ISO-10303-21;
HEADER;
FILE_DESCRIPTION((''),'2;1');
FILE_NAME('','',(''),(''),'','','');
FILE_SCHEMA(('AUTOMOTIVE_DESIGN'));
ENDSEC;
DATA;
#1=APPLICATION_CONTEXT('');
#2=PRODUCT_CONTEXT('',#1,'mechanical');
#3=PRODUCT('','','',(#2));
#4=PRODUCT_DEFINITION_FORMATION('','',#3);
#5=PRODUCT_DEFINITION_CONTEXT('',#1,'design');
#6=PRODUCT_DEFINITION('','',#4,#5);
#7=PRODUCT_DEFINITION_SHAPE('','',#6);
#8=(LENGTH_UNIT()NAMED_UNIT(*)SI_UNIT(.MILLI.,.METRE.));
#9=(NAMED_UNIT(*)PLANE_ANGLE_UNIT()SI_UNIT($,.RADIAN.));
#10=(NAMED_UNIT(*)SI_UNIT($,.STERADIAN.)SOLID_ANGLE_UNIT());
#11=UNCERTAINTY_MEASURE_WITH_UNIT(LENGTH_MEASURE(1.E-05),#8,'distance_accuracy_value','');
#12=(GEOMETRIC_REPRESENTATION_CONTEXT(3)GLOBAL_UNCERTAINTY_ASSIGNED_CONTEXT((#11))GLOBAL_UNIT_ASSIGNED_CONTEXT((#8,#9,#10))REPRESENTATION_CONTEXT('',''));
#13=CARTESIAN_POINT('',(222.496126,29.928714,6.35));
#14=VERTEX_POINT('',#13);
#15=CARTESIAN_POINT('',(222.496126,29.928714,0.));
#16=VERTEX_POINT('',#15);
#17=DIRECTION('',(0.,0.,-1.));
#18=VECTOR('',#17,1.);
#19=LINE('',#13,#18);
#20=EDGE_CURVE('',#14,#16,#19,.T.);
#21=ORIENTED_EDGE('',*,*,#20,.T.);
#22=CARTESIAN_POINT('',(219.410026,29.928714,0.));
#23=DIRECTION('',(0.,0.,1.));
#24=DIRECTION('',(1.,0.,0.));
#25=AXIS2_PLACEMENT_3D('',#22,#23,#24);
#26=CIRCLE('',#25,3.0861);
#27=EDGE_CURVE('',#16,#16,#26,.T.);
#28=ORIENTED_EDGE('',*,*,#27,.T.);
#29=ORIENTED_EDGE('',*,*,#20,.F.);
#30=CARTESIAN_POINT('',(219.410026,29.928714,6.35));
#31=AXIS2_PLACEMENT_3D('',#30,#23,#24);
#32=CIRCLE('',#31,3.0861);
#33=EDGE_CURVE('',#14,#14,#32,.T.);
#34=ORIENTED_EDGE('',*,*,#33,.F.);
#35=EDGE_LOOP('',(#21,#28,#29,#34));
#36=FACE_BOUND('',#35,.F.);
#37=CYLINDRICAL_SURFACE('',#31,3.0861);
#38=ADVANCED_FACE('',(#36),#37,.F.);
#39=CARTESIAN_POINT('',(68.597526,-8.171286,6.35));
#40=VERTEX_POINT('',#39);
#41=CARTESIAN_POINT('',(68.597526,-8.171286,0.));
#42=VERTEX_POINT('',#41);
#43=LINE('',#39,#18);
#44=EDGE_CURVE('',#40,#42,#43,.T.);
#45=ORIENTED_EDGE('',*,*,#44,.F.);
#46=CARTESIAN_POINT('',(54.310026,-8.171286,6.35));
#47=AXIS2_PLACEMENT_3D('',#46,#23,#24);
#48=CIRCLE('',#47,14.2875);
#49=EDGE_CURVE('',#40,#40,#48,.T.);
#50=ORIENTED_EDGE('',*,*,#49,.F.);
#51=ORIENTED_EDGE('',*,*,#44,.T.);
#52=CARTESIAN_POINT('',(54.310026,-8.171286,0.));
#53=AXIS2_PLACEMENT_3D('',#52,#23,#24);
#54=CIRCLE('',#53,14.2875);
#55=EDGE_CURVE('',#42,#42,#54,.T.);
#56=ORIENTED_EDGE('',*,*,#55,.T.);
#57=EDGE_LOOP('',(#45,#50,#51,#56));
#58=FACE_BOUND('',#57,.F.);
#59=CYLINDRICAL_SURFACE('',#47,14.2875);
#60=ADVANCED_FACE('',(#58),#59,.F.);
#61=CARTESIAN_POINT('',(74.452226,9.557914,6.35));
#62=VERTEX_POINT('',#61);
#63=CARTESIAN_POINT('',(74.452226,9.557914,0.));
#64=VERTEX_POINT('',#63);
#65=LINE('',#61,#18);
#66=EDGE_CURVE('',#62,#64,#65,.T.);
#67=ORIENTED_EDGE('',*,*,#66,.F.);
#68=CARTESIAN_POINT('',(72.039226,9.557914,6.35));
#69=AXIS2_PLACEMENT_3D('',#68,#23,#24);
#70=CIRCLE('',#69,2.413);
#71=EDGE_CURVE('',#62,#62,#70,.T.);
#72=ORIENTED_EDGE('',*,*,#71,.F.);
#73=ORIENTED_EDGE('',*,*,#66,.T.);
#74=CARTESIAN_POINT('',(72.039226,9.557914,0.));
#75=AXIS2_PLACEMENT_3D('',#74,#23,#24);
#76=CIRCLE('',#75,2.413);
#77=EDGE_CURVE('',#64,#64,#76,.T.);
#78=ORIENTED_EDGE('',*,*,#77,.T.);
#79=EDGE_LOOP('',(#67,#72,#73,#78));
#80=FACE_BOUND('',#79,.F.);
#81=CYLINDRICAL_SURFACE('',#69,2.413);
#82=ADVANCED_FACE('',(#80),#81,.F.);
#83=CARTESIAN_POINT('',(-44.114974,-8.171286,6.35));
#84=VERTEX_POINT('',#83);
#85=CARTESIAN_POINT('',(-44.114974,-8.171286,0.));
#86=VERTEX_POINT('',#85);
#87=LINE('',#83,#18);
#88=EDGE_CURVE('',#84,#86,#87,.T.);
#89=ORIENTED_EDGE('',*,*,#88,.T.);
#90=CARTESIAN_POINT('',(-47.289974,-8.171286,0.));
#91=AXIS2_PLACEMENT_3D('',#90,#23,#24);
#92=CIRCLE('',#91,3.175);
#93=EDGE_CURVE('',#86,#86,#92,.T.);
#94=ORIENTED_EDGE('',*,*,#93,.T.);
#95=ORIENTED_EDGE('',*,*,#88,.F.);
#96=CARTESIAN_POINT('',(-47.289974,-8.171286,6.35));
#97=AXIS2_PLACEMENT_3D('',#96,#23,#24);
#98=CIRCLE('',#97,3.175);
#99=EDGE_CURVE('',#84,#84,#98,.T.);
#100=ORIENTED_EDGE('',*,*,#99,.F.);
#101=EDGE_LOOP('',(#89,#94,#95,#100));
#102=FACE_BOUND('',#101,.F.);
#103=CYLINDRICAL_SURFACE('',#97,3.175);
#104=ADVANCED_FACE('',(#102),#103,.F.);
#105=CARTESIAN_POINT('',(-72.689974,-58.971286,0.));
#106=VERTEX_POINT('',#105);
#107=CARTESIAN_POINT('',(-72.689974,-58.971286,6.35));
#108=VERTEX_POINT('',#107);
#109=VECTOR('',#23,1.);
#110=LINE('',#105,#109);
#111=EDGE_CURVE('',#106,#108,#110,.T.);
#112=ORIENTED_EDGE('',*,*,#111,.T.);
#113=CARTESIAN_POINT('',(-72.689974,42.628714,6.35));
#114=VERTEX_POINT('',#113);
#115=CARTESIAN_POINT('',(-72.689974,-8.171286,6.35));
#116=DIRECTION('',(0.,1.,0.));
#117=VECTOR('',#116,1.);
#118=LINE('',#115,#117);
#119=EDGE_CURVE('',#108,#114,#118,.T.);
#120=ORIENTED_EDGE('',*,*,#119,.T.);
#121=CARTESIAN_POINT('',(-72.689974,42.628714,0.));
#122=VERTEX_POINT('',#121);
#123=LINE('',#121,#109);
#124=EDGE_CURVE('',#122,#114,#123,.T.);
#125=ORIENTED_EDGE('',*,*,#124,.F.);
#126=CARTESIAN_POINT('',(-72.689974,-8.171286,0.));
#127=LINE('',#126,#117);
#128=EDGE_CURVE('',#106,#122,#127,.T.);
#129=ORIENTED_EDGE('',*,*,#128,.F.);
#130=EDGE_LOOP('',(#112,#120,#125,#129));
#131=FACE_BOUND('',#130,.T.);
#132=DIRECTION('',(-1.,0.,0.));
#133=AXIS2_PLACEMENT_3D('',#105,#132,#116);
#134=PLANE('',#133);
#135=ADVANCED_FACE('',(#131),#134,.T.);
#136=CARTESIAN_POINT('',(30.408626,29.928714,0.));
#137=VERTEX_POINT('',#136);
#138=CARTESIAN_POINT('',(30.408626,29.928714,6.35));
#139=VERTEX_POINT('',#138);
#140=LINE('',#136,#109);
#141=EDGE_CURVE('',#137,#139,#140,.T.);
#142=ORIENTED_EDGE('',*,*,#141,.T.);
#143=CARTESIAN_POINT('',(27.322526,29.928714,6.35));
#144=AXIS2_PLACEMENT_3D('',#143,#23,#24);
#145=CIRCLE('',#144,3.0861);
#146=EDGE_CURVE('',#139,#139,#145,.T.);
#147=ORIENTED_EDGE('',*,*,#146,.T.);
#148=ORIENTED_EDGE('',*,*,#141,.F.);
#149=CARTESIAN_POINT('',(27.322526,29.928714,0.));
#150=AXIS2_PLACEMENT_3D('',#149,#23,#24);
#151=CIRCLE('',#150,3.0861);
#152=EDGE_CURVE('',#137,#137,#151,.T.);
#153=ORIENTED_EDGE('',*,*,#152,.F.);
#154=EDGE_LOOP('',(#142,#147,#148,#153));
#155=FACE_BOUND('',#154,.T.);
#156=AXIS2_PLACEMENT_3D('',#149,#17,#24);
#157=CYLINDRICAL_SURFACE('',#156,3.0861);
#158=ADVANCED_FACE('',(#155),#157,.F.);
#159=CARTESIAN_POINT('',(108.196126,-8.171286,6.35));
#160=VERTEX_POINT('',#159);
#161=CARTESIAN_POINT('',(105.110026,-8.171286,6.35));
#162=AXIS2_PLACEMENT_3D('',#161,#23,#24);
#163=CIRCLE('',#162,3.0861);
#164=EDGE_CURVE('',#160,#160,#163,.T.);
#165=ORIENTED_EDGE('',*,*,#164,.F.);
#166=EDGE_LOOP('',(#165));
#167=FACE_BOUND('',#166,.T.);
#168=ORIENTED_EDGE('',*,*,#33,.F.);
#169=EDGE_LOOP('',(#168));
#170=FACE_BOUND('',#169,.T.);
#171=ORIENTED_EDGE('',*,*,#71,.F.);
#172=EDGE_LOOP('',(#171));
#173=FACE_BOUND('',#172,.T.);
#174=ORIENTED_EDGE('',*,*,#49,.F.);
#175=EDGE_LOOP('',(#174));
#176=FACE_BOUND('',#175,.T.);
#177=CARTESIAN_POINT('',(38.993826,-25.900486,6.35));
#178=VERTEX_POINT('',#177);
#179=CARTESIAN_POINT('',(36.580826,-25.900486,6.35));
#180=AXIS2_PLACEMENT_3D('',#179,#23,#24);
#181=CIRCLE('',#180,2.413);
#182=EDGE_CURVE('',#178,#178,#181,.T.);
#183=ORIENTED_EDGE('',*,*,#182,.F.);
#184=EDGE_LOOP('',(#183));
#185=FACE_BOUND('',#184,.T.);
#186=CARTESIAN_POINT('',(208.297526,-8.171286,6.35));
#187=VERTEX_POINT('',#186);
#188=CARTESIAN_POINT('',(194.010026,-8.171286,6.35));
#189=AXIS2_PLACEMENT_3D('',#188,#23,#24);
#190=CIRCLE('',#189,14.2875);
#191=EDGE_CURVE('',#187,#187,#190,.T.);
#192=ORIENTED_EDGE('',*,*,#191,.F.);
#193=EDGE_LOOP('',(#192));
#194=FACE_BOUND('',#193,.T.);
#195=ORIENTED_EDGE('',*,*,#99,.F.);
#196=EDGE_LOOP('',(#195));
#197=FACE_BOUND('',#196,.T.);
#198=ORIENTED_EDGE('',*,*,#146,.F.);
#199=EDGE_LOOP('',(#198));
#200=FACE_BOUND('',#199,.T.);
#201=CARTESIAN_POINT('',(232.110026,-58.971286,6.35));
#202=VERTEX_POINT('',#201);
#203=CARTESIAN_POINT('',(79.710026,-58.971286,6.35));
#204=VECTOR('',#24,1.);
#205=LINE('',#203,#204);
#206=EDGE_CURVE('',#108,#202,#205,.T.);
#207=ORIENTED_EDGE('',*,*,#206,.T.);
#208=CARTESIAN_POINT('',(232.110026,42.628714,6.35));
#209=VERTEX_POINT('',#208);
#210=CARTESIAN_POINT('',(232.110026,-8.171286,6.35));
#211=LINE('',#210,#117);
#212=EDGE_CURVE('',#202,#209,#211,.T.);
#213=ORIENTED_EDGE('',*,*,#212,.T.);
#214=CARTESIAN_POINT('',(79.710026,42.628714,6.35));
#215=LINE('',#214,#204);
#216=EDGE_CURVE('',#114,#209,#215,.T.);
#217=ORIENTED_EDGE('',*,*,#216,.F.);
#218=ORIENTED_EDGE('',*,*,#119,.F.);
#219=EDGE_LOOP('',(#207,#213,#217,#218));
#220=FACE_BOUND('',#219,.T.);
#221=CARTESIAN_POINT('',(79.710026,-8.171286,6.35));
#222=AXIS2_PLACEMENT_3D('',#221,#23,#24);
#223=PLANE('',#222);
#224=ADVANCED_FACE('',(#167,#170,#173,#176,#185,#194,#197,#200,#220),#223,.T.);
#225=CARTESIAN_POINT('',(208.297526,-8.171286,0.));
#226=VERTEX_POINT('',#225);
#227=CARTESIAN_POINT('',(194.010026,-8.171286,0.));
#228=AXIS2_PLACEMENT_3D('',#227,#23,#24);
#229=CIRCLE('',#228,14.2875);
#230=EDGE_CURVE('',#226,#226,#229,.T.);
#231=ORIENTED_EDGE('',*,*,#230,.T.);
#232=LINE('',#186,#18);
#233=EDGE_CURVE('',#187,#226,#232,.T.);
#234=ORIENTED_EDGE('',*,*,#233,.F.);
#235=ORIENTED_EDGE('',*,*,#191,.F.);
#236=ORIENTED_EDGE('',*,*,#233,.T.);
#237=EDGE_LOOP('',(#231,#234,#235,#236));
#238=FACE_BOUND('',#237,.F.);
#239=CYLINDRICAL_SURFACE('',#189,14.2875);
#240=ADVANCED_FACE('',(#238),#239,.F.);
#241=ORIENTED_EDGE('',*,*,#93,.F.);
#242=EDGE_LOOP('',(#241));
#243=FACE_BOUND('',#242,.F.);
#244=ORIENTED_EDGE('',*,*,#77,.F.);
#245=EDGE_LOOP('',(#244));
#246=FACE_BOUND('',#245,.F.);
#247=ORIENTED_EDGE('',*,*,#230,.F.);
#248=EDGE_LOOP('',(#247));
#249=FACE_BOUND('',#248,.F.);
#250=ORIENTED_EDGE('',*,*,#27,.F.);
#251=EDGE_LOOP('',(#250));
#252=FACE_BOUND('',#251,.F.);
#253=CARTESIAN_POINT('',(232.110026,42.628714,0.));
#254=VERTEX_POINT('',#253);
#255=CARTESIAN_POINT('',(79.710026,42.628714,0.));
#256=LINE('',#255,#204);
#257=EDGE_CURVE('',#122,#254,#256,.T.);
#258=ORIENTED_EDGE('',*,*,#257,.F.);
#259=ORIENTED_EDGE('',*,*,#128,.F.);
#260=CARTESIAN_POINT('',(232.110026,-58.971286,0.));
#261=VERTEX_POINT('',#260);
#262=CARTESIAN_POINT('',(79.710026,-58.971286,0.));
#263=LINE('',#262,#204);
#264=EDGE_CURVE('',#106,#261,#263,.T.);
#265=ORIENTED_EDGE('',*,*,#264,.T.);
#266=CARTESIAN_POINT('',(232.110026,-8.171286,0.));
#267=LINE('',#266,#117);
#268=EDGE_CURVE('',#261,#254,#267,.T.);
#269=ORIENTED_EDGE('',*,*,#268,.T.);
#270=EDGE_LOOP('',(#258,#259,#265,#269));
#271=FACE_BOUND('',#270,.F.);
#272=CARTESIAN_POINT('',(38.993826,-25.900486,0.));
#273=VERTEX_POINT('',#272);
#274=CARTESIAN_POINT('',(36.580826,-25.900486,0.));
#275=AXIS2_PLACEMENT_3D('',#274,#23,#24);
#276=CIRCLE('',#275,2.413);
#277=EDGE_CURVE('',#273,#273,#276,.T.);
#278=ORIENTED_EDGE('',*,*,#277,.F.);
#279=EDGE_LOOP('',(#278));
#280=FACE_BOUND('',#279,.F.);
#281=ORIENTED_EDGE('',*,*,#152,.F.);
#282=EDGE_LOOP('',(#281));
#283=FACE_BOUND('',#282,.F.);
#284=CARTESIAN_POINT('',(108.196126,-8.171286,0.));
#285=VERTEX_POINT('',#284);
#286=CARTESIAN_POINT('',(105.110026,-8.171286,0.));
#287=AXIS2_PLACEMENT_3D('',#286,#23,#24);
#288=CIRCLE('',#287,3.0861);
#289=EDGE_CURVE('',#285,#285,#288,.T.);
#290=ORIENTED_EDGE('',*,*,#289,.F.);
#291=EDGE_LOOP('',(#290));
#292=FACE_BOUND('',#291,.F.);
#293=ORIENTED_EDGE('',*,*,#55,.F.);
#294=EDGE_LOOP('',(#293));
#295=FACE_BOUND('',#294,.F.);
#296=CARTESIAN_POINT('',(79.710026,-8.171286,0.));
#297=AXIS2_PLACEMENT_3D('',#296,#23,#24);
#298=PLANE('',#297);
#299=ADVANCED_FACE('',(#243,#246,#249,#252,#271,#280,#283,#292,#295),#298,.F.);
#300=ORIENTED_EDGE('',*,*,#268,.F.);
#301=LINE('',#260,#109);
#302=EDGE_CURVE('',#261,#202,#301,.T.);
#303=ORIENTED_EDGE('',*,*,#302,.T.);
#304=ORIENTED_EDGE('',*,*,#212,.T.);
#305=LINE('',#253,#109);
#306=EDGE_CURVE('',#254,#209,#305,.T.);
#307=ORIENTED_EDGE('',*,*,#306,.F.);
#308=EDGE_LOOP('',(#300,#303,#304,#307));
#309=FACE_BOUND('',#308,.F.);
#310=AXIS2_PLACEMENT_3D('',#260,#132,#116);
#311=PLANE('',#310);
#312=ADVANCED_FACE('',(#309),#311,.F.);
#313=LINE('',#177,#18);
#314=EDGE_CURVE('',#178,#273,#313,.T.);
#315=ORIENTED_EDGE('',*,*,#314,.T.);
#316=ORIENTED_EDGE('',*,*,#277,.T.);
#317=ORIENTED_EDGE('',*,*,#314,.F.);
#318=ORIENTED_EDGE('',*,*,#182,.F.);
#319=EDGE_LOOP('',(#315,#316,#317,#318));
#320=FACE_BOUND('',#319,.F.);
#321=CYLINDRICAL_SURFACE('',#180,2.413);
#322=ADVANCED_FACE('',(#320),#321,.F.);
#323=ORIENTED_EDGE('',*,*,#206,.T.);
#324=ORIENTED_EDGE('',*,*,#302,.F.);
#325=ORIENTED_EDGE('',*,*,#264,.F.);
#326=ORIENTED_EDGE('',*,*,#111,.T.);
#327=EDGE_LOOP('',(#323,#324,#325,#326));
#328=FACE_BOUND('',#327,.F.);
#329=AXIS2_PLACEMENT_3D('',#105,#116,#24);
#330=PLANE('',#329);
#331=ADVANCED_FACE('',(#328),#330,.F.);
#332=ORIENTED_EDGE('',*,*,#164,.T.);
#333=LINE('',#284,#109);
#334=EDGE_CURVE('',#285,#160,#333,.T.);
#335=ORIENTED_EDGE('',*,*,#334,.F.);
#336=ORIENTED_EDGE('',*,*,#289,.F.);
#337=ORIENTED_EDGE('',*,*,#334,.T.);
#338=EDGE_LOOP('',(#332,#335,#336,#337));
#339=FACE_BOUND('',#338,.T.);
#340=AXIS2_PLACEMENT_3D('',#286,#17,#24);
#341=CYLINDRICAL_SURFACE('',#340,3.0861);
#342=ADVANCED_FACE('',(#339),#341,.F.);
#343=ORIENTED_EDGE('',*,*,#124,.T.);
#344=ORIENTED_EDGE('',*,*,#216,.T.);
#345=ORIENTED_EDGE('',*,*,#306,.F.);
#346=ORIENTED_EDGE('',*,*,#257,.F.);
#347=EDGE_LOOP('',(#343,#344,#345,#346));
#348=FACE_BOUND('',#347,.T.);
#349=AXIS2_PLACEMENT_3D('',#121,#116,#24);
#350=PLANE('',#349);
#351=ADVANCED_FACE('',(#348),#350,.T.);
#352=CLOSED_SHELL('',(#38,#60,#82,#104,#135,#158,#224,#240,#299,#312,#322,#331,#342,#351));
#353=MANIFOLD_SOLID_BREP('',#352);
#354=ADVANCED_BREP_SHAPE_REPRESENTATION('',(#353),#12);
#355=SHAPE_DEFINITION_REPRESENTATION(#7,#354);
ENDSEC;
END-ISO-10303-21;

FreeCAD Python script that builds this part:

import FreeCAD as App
import Part
import Sketcher
from FreeCAD import Vector
Q = App.Units.Quantity


def add_polygon(sketch, points):
    """Adds a closed chain of lines whose ends are joined by coincident constraints."""
    first, n = sketch.GeometryCount, len(points)
    for a, b in zip(points, points[1:] + points[:1]):
        sketch.addGeometry(Part.LineSegment(App.Vector(*a, 0), App.Vector(*b, 0)), False)
    for i in range(n):
        sketch.addConstraint(Sketcher.Constraint("Coincident", first + i, 2, first + (i + 1) % n, 1))

doc = App.newDocument("Part")
params = doc.addObject("Spreadsheet::Sheet", "Params")
for row, (alias, value) in enumerate([
    ("sketch1_width", "12 in"),
    ("sketch1_height", "4 in"),
    ("pad1_length", "0.25 in"),
    ("sketch2_diameter", "0.25 in"),
    ("pocket1_length", "0.25 in"),
    ("sketch3_diameter", "1.125 in"),
    ("pocket2_length", "0.25 in"),
    ("sketch4_diameter", "1.125 in"),
    ("pocket3_length", "0.25 in"),
    ("sketch5_diameter", "0.19 in"),
    ("pocket4_length", "0.25 in"),
    ("sketch6_diameter", "0.243 in"),
    ("pocket5_length", "0.25 in"),
    ("sketch7_diameter", "0.243 in"),
    ("pocket6_length", "0.25 in"),
    ("sketch8_diameter", "0.243 in"),
    ("pocket7_length", "0.25 in"),
], start=1):
    params.set(f"A{row}", alias)
    params.set(f"B{row}", "=" + value)
    params.setAlias(f"B{row}", alias)

body = doc.addObject("PartDesign::Body", "Body")

# Sketch on XY plane
sketch1 = body.newObject("Sketcher::SketchObject", "Sketch")
sketch1.AttachmentSupport = (doc.getObject("XY_Plane"), [""])
sketch1.MapMode = "FlatFace"
add_polygon(sketch1, [(-73, 43), (-73, -59), (232, -59), (232, 43)])  # lines 0-3
sketch1.addConstraint(Sketcher.Constraint("Vertical", 0))
sketch1.addConstraint(Sketcher.Constraint("Horizontal", 1))
sketch1.addConstraint(Sketcher.Constraint("Vertical", 2))
sketch1.addConstraint(Sketcher.Constraint("Horizontal", 3))
sketch1.addConstraint(Sketcher.Constraint("DistanceX", 1, 1, 1, 2, Q("12 in")))
sketch1.addConstraint(Sketcher.Constraint("DistanceY", 0, 2, 0, 1, Q("4 in")))
sketch1.addConstraint(Sketcher.Constraint("DistanceX", 0, 2, -1, 1, Q("72.689974 mm")))
sketch1.addConstraint(Sketcher.Constraint("DistanceY", 0, 2, -1, 1, Q("58.971286 mm")))
sketch1.setExpression("Constraints[8]", "Params.sketch1_width")
sketch1.setExpression("Constraints[9]", "Params.sketch1_height")
pad1 = body.newObject("PartDesign::Pad", "Pad")
pad1.Profile = sketch1
pad1.setExpression("Length", "Params.pad1_length")

# Sketch on XY plane
sketch2 = body.newObject("Sketcher::SketchObject", "Sketch001")
sketch2.AttachmentSupport = (doc.getObject("XY_Plane"), [""])
sketch2.MapMode = "FlatFace"
sketch2.AttachmentOffset = App.Placement(Vector(0, 0, 0.25 * 25.4), App.Rotation())
sketch2.addGeometry(Part.Circle(Vector(-47.3, -8.2, 0), Vector(0, 0, 1), 3.2), False)
sketch2.addConstraint(Sketcher.Constraint("Diameter", 0, Q("0.25 in")))
sketch2.addConstraint(Sketcher.Constraint("DistanceX", 0, 3, -1, 1, Q("47.289974 mm")))
sketch2.addConstraint(Sketcher.Constraint("DistanceY", 0, 3, -1, 1, Q("8.171286 mm")))
sketch2.setExpression("Constraints[0]", "Params.sketch2_diameter")
pocket1 = body.newObject("PartDesign::Pocket", "Pocket")
pocket1.Profile = sketch2
pocket1.setExpression("Length", "Params.pocket1_length")

# Sketch on XY plane
sketch3 = body.newObject("Sketcher::SketchObject", "Sketch002")
sketch3.AttachmentSupport = (doc.getObject("XY_Plane"), [""])
sketch3.MapMode = "FlatFace"
sketch3.AttachmentOffset = App.Placement(Vector(0, 0, 0.25 * 25.4), App.Rotation())
sketch3.addGeometry(Part.Circle(Vector(194, -8, 0), Vector(0, 0, 1), 14), False)
sketch3.addConstraint(Sketcher.Constraint("Diameter", 0, Q("1.125 in")))
sketch3.addConstraint(Sketcher.Constraint("DistanceX", -1, 1, 0, 3, Q("194.010026 mm")))
sketch3.addConstraint(Sketcher.Constraint("DistanceY", 0, 3, -1, 1, Q("8.171286 mm")))
sketch3.setExpression("Constraints[0]", "Params.sketch3_diameter")
pocket2 = body.newObject("PartDesign::Pocket", "Pocket001")
pocket2.Profile = sketch3
pocket2.setExpression("Length", "Params.pocket2_length")

# Sketch on XY plane
sketch4 = body.newObject("Sketcher::SketchObject", "Sketch003")
sketch4.AttachmentSupport = (doc.getObject("XY_Plane"), [""])
sketch4.MapMode = "FlatFace"
sketch4.AttachmentOffset = App.Placement(Vector(0, 0, 0.25 * 25.4), App.Rotation())
sketch4.addGeometry(Part.Circle(Vector(54, -8, 0), Vector(0, 0, 1), 14), False)
sketch4.addConstraint(Sketcher.Constraint("Diameter", 0, Q("1.125 in")))
sketch4.addConstraint(Sketcher.Constraint("DistanceX", -1, 1, 0, 3, Q("54.310026 mm")))
sketch4.addConstraint(Sketcher.Constraint("DistanceY", 0, 3, -1, 1, Q("8.171286 mm")))
sketch4.setExpression("Constraints[0]", "Params.sketch4_diameter")
pocket3 = body.newObject("PartDesign::Pocket", "Pocket002")
pocket3.Profile = sketch4
pocket3.setExpression("Length", "Params.pocket3_length")

# Sketch on XY plane
sketch5 = body.newObject("Sketcher::SketchObject", "Sketch004")
sketch5.AttachmentSupport = (doc.getObject("XY_Plane"), [""])
sketch5.MapMode = "FlatFace"
sketch5.AttachmentOffset = App.Placement(Vector(0, 0, 0.25 * 25.4), App.Rotation())
sketch5.addGeometry(Part.Circle(Vector(36.6, -25.9, 0), Vector(0, 0, 1), 2.4), False)
sketch5.addGeometry(Part.Circle(Vector(72, 9.6, 0), Vector(0, 0, 1), 2.4), False)
sketch5.addConstraint(Sketcher.Constraint("Equal", 0, 1))
sketch5.addConstraint(Sketcher.Constraint("Diameter", 0, Q("0.19 in")))
sketch5.addConstraint(Sketcher.Constraint("DistanceX", 0, 3, 1, 3, Q("1.396 in")))
sketch5.addConstraint(Sketcher.Constraint("DistanceY", 0, 3, 1, 3, Q("1.396 in")))
sketch5.addConstraint(Sketcher.Constraint("DistanceX", -1, 1, 0, 3, Q("36.580826 mm")))
sketch5.addConstraint(Sketcher.Constraint("DistanceY", 0, 3, -1, 1, Q("25.900486 mm")))
sketch5.setExpression("Constraints[1]", "Params.sketch5_diameter")
pocket4 = body.newObject("PartDesign::Pocket", "Pocket003")
pocket4.Profile = sketch5
pocket4.setExpression("Length", "Params.pocket4_length")

# Sketch on XY plane
sketch6 = body.newObject("Sketcher::SketchObject", "Sketch005")
sketch6.AttachmentSupport = (doc.getObject("XY_Plane"), [""])
sketch6.MapMode = "FlatFace"
sketch6.addGeometry(Part.Circle(Vector(105.1, -8.2, 0), Vector(0, 0, 1), 3.1), False)
sketch6.addConstraint(Sketcher.Constraint("Diameter", 0, Q("0.243 in")))
sketch6.addConstraint(Sketcher.Constraint("DistanceX", -1, 1, 0, 3, Q("105.110026 mm")))
sketch6.addConstraint(Sketcher.Constraint("DistanceY", 0, 3, -1, 1, Q("8.171286 mm")))
sketch6.setExpression("Constraints[0]", "Params.sketch6_diameter")
pocket5 = body.newObject("PartDesign::Pocket", "Pocket004")
pocket5.Profile = sketch6
pocket5.setExpression("Length", "Params.pocket5_length")
pocket5.Reversed = True

# Sketch on XY plane
sketch7 = body.newObject("Sketcher::SketchObject", "Sketch006")
sketch7.AttachmentSupport = (doc.getObject("XY_Plane"), [""])
sketch7.MapMode = "FlatFace"
sketch7.addGeometry(Part.Circle(Vector(27.3, 29.9, 0), Vector(0, 0, 1), 3.1), False)
sketch7.addConstraint(Sketcher.Constraint("Diameter", 0, Q("0.243 in")))
sketch7.addConstraint(Sketcher.Constraint("DistanceX", -1, 1, 0, 3, Q("27.322526 mm")))
sketch7.addConstraint(Sketcher.Constraint("DistanceY", -1, 1, 0, 3, Q("29.928714 mm")))
sketch7.setExpression("Constraints[0]", "Params.sketch7_diameter")
pocket6 = body.newObject("PartDesign::Pocket", "Pocket005")
pocket6.Profile = sketch7
pocket6.setExpression("Length", "Params.pocket6_length")
pocket6.Reversed = True

# Sketch on XY plane
sketch8 = body.newObject("Sketcher::SketchObject", "Sketch007")
sketch8.AttachmentSupport = (doc.getObject("XY_Plane"), [""])
sketch8.MapMode = "FlatFace"
sketch8.AttachmentOffset = App.Placement(Vector(0, 0, 0.25 * 25.4), App.Rotation())
sketch8.addGeometry(Part.Circle(Vector(219.4, 29.9, 0), Vector(0, 0, 1), 3.1), False)
sketch8.addConstraint(Sketcher.Constraint("Diameter", 0, Q("0.243 in")))
sketch8.addConstraint(Sketcher.Constraint("DistanceX", -1, 1, 0, 3, Q("219.410026 mm")))
sketch8.addConstraint(Sketcher.Constraint("DistanceY", -1, 1, 0, 3, Q("29.928714 mm")))
sketch8.setExpression("Constraints[0]", "Params.sketch8_diameter")
pocket7 = body.newObject("PartDesign::Pocket", "Pocket006")
pocket7.Profile = sketch8
pocket7.setExpression("Length", "Params.pocket7_length")

doc.recompute()
